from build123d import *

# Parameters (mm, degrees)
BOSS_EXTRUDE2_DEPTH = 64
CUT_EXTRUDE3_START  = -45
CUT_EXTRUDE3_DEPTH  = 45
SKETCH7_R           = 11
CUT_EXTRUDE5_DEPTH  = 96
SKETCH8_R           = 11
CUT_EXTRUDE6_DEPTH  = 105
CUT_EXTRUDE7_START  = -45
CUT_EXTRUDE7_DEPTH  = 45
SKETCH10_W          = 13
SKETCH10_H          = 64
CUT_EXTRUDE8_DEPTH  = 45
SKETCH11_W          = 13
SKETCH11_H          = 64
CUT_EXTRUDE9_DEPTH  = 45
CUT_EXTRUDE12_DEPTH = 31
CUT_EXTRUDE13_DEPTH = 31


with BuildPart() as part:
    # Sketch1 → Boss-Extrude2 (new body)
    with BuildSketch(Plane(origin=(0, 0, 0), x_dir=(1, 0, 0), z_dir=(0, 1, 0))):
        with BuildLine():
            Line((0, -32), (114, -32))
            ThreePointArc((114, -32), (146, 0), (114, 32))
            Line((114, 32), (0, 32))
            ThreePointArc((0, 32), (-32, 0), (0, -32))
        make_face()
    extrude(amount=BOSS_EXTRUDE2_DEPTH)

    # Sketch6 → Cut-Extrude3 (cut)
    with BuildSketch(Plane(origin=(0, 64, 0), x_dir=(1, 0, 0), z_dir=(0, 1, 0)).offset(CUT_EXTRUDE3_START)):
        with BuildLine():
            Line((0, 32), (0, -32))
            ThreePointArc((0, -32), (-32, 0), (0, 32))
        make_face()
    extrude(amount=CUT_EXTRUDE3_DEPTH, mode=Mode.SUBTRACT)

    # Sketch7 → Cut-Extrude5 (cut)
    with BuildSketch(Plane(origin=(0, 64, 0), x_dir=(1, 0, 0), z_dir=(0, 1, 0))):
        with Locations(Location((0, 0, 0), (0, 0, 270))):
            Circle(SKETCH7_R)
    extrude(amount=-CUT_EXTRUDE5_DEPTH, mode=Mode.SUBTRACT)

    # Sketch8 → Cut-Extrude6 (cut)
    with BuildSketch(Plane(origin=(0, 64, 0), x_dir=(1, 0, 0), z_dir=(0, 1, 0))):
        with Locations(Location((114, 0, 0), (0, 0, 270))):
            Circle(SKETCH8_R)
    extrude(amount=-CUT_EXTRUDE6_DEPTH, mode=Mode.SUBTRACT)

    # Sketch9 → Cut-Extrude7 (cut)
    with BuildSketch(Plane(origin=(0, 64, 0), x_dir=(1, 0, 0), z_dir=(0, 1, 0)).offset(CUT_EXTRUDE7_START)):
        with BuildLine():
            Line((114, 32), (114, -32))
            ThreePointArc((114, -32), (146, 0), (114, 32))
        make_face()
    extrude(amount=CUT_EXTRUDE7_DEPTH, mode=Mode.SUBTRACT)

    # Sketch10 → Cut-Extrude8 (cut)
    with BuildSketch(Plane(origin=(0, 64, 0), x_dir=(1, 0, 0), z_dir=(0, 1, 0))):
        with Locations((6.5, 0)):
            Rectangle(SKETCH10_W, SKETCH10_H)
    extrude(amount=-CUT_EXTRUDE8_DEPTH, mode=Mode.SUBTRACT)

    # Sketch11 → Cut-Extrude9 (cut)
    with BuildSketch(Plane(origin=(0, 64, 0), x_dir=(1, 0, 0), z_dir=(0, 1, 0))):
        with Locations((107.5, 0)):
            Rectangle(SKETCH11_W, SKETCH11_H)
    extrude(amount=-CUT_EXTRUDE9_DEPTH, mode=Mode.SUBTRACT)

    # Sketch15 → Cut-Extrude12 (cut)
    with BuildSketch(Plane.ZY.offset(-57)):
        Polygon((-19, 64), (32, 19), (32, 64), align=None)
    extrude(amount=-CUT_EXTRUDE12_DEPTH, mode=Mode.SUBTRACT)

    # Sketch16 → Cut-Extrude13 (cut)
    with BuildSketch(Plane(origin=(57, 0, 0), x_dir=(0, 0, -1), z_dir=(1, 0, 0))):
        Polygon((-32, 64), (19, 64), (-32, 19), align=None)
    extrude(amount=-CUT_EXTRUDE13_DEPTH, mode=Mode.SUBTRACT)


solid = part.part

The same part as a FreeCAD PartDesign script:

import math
import FreeCAD as App
import Part
import Sketcher

V = App.Vector
Q = App.Units.Quantity


def add_polygon(sketch, points):
    """Adds a closed chain of lines whose ends are joined by coincident constraints."""
    first, n = sketch.GeometryCount, len(points)
    for a, b in zip(points, points[1:] + points[:1]):
        sketch.addGeometry(Part.LineSegment(App.Vector(*a, 0), App.Vector(*b, 0)), False)
    for i in range(n):
        sketch.addConstraint(Sketcher.Constraint("Coincident", first + i, 2, first + (i + 1) % n, 1))

doc = App.newDocument("Part")
body = doc.addObject("PartDesign::Body", "Body")

sketch1 = body.newObject("Sketcher::SketchObject", "Sketch")
sketch1.AttachmentSupport = (doc.getObject("XZ_Plane"), [""])
sketch1.MapMode = "FlatFace"
sketch1.addGeometry(Part.LineSegment(V(0, 32, 0), V(114, 32, 0)), False)
sketch1.addGeometry(Part.ArcOfCircle(Part.Circle(V(114, 0, 0), V(0, 0, 1), 32), math.radians(-90), math.radians(90)), False)
sketch1.addGeometry(Part.LineSegment(V(114, -32, 0), V(0, -32, 0)), False)
sketch1.addGeometry(Part.ArcOfCircle(Part.Circle(V(0, 0, 0), V(0, 0, 1), 32), math.radians(90), math.radians(270)), False)
sketch1.addConstraint(Sketcher.Constraint("Tangent", 0, 2, 1, 2))
sketch1.addConstraint(Sketcher.Constraint("Tangent", 1, 1, 2, 1))
sketch1.addConstraint(Sketcher.Constraint("Tangent", 2, 2, 3, 2))
sketch1.addConstraint(Sketcher.Constraint("Tangent", 3, 1, 0, 1))
sketch1.addConstraint(Sketcher.Constraint("Horizontal", 0))
sketch1.addConstraint(Sketcher.Constraint("Horizontal", 2))
sketch1.addConstraint(Sketcher.Constraint("Coincident", 3, 3, -1, 1))
sketch1.addConstraint(Sketcher.Constraint("Radius", 1, Q("32 mm")))
sketch1.addConstraint(Sketcher.Constraint("DistanceX", 0, 1, 0, 2, Q("114 mm")))
pad1 = body.newObject("PartDesign::Pad", "Pad")
pad1.Profile = sketch1
pad1.Length = 64
pad1.Reversed = True

sketch2 = body.newObject("Sketcher::SketchObject", "Sketch001")
sketch2.AttachmentSupport = (doc.getObject("XZ_Plane"), [""])
sketch2.MapMode = "FlatFace"
sketch2.AttachmentOffset = App.Placement(V(0, 0, -19), App.Rotation())
sketch2.addGeometry(Part.LineSegment(V(0, 32, 0), V(0, -32, 0)), False)
sketch2.addGeometry(Part.ArcOfCircle(Part.Circle(V(0, 0, 0), V(0, 0, 1), 32), math.radians(90), math.radians(270)), False)
sketch2.addConstraint(Sketcher.Constraint("Coincident", 0, 1, 1, 1))
sketch2.addConstraint(Sketcher.Constraint("Coincident", 1, 2, 0, 2))
sketch2.addConstraint(Sketcher.Constraint("Vertical", 0))
sketch2.addConstraint(Sketcher.Constraint("Coincident", 1, 3, -1, 1))
sketch2.addConstraint(Sketcher.Constraint("PointOnObject", 0, 1, -2))
sketch2.addConstraint(Sketcher.Constraint("Radius", 1, Q("32 mm")))
pocket1 = body.newObject("PartDesign::Pocket", "Pocket")
pocket1.Profile = sketch2
pocket1.Length = 45

sketch3 = body.newObject("Sketcher::SketchObject", "Sketch002")
sketch3.AttachmentSupport = (doc.getObject("XZ_Plane"), [""])
sketch3.MapMode = "FlatFace"
sketch3.AttachmentOffset = App.Placement(V(0, 0, -64), App.Rotation())
sketch3.addGeometry(Part.Circle(V(0, 0, 0), V(0, 0, 1), 11), False)
sketch3.addConstraint(Sketcher.Constraint("Coincident", 0, 3, -1, 1))
sketch3.addConstraint(Sketcher.Constraint("Diameter", 0, Q("22 mm")))
pocket2 = body.newObject("PartDesign::Pocket", "Pocket001")
pocket2.Profile = sketch3
pocket2.Length = 96
pocket2.Reversed = True

sketch4 = body.newObject("Sketcher::SketchObject", "Sketch003")
sketch4.AttachmentSupport = (doc.getObject("XZ_Plane"), [""])
sketch4.MapMode = "FlatFace"
sketch4.AttachmentOffset = App.Placement(V(0, 0, -64), App.Rotation())
sketch4.addGeometry(Part.Circle(V(114, 0, 0), V(0, 0, 1), 11), False)
sketch4.addConstraint(Sketcher.Constraint("PointOnObject", 0, 3, -1))
sketch4.addConstraint(Sketcher.Constraint("Diameter", 0, Q("22 mm")))
sketch4.addConstraint(Sketcher.Constraint("DistanceX", -1, 1, 0, 3, Q("114 mm")))
pocket3 = body.newObject("PartDesign::Pocket", "Pocket002")
pocket3.Profile = sketch4
pocket3.Length = 105
pocket3.Reversed = True

sketch5 = body.newObject("Sketcher::SketchObject", "Sketch004")
sketch5.AttachmentSupport = (doc.getObject("XZ_Plane"), [""])
sketch5.MapMode = "FlatFace"
sketch5.AttachmentOffset = App.Placement(V(0, 0, -19), App.Rotation())
sketch5.addGeometry(Part.LineSegment(V(114, -32, 0), V(114, 32, 0)), False)
sketch5.addGeometry(Part.ArcOfCircle(Part.Circle(V(114, 0, 0), V(0, 0, 1), 32), math.radians(-90), math.radians(90)), False)
sketch5.addConstraint(Sketcher.Constraint("Coincident", 0, 1, 1, 1))
sketch5.addConstraint(Sketcher.Constraint("Coincident", 1, 2, 0, 2))
sketch5.addConstraint(Sketcher.Constraint("Vertical", 0))
sketch5.addConstraint(Sketcher.Constraint("PointOnObject", 1, 3, -1))
sketch5.addConstraint(Sketcher.Constraint("Vertical", 1, 3, 0, 1))
sketch5.addConstraint(Sketcher.Constraint("Radius", 1, Q("32 mm")))
sketch5.addConstraint(Sketcher.Constraint("DistanceX", -1, 1, 1, 3, Q("114 mm")))
pocket4 = body.newObject("PartDesign::Pocket", "Pocket003")
pocket4.Profile = sketch5
pocket4.Length = 45

sketch6 = body.newObject("Sketcher::SketchObject", "Sketch005")
sketch6.AttachmentSupport = (doc.getObject("XZ_Plane"), [""])
sketch6.MapMode = "FlatFace"
sketch6.AttachmentOffset = App.Placement(V(0, 0, -64), App.Rotation())
add_polygon(sketch6, [(0, -32), (0, 32), (13, 32), (13, -32)])
sketch6.addConstraint(Sketcher.Constraint("Vertical", 0))
sketch6.addConstraint(Sketcher.Constraint("Horizontal", 1))
sketch6.addConstraint(Sketcher.Constraint("Vertical", 2))
sketch6.addConstraint(Sketcher.Constraint("Horizontal", 3))
sketch6.addConstraint(Sketcher.Constraint("Symmetric", 0, 2, 3, 2, -1, 1))
sketch6.addConstraint(Sketcher.Constraint("DistanceX", 1, 1, 1, 2, Q("13 mm")))
sketch6.addConstraint(Sketcher.Constraint("DistanceY", 0, 1, 0, 2, Q("64 mm")))
pocket5 = body.newObject("PartDesign::Pocket", "Pocket004")
pocket5.Profile = sketch6
pocket5.Length = 45
pocket5.Reversed = True

sketch7 = body.newObject("Sketcher::SketchObject", "Sketch006")
sketch7.AttachmentSupport = (doc.getObject("XZ_Plane"), [""])
sketch7.MapMode = "FlatFace"
sketch7.AttachmentOffset = App.Placement(V(0, 0, -64), App.Rotation())
add_polygon(sketch7, [(101, -32), (101, 32), (114, 32), (114, -32)])
sketch7.addConstraint(Sketcher.Constraint("Vertical", 0))
sketch7.addConstraint(Sketcher.Constraint("Horizontal", 1))
sketch7.addConstraint(Sketcher.Constraint("Vertical", 2))
sketch7.addConstraint(Sketcher.Constraint("Horizontal", 3))
sketch7.addConstraint(Sketcher.Constraint("DistanceX", 1, 1, 1, 2, Q("13 mm")))
sketch7.addConstraint(Sketcher.Constraint("DistanceY", 0, 1, 0, 2, Q("64 mm")))
sketch7.addConstraint(Sketcher.Constraint("DistanceX", -1, 1, 0, 2, Q("101 mm")))
sketch7.addConstraint(Sketcher.Constraint("DistanceY", -1, 1, 0, 2, Q("32 mm")))
pocket6 = body.newObject("PartDesign::Pocket", "Pocket005")
pocket6.Profile = sketch7
pocket6.Length = 45
pocket6.Reversed = True

sketch8 = body.newObject("Sketcher::SketchObject", "Sketch007")
sketch8.AttachmentSupport = (doc.getObject("YZ_Plane"), [""])
sketch8.MapMode = "FlatFace"
sketch8.AttachmentOffset = App.Placement(V(0, 0, 57), App.Rotation())
add_polygon(sketch8, [(64, -19), (19, 32), (64, 32)])
sketch8.addConstraint(Sketcher.Constraint("Horizontal", 1))
sketch8.addConstraint(Sketcher.Constraint("Vertical", 2))
sketch8.addConstraint(Sketcher.Constraint("DistanceX", 1, 1, 1, 2, Q("45 mm")))
sketch8.addConstraint(Sketcher.Constraint("DistanceY", 2, 2, 2, 1, Q("51 mm")))
sketch8.addConstraint(Sketcher.Constraint("DistanceX", -1, 1, 0, 2, Q("19 mm")))
sketch8.addConstraint(Sketcher.Constraint("DistanceY", -1, 1, 0, 2, Q("32 mm")))
pocket7 = body.newObject("PartDesign::Pocket", "Pocket006")
pocket7.Profile = sketch8
pocket7.Length = 31
pocket7.Reversed = True

sketch9 = body.newObject("Sketcher::SketchObject", "Sketch008")
sketch9.AttachmentSupport = (doc.getObject("YZ_Plane"), [""])
sketch9.MapMode = "FlatFace"
sketch9.AttachmentOffset = App.Placement(V(0, 0, 57), App.Rotation())
add_polygon(sketch9, [(64, -19), (64, 32), (19, 32)])
sketch9.addConstraint(Sketcher.Constraint("Vertical", 0))
sketch9.addConstraint(Sketcher.Constraint("Horizontal", 1))
sketch9.addConstraint(Sketcher.Constraint("DistanceX", 1, 2, 1, 1, Q("45 mm")))
sketch9.addConstraint(Sketcher.Constraint("DistanceY", 0, 1, 0, 2, Q("51 mm")))
sketch9.addConstraint(Sketcher.Constraint("DistanceX", -1, 1, 0, 2, Q("64 mm")))
sketch9.addConstraint(Sketcher.Constraint("DistanceY", -1, 1, 0, 2, Q("32 mm")))
pocket8 = body.newObject("PartDesign::Pocket", "Pocket007")
pocket8.Profile = sketch9
pocket8.Length = 31

doc.recompute()
